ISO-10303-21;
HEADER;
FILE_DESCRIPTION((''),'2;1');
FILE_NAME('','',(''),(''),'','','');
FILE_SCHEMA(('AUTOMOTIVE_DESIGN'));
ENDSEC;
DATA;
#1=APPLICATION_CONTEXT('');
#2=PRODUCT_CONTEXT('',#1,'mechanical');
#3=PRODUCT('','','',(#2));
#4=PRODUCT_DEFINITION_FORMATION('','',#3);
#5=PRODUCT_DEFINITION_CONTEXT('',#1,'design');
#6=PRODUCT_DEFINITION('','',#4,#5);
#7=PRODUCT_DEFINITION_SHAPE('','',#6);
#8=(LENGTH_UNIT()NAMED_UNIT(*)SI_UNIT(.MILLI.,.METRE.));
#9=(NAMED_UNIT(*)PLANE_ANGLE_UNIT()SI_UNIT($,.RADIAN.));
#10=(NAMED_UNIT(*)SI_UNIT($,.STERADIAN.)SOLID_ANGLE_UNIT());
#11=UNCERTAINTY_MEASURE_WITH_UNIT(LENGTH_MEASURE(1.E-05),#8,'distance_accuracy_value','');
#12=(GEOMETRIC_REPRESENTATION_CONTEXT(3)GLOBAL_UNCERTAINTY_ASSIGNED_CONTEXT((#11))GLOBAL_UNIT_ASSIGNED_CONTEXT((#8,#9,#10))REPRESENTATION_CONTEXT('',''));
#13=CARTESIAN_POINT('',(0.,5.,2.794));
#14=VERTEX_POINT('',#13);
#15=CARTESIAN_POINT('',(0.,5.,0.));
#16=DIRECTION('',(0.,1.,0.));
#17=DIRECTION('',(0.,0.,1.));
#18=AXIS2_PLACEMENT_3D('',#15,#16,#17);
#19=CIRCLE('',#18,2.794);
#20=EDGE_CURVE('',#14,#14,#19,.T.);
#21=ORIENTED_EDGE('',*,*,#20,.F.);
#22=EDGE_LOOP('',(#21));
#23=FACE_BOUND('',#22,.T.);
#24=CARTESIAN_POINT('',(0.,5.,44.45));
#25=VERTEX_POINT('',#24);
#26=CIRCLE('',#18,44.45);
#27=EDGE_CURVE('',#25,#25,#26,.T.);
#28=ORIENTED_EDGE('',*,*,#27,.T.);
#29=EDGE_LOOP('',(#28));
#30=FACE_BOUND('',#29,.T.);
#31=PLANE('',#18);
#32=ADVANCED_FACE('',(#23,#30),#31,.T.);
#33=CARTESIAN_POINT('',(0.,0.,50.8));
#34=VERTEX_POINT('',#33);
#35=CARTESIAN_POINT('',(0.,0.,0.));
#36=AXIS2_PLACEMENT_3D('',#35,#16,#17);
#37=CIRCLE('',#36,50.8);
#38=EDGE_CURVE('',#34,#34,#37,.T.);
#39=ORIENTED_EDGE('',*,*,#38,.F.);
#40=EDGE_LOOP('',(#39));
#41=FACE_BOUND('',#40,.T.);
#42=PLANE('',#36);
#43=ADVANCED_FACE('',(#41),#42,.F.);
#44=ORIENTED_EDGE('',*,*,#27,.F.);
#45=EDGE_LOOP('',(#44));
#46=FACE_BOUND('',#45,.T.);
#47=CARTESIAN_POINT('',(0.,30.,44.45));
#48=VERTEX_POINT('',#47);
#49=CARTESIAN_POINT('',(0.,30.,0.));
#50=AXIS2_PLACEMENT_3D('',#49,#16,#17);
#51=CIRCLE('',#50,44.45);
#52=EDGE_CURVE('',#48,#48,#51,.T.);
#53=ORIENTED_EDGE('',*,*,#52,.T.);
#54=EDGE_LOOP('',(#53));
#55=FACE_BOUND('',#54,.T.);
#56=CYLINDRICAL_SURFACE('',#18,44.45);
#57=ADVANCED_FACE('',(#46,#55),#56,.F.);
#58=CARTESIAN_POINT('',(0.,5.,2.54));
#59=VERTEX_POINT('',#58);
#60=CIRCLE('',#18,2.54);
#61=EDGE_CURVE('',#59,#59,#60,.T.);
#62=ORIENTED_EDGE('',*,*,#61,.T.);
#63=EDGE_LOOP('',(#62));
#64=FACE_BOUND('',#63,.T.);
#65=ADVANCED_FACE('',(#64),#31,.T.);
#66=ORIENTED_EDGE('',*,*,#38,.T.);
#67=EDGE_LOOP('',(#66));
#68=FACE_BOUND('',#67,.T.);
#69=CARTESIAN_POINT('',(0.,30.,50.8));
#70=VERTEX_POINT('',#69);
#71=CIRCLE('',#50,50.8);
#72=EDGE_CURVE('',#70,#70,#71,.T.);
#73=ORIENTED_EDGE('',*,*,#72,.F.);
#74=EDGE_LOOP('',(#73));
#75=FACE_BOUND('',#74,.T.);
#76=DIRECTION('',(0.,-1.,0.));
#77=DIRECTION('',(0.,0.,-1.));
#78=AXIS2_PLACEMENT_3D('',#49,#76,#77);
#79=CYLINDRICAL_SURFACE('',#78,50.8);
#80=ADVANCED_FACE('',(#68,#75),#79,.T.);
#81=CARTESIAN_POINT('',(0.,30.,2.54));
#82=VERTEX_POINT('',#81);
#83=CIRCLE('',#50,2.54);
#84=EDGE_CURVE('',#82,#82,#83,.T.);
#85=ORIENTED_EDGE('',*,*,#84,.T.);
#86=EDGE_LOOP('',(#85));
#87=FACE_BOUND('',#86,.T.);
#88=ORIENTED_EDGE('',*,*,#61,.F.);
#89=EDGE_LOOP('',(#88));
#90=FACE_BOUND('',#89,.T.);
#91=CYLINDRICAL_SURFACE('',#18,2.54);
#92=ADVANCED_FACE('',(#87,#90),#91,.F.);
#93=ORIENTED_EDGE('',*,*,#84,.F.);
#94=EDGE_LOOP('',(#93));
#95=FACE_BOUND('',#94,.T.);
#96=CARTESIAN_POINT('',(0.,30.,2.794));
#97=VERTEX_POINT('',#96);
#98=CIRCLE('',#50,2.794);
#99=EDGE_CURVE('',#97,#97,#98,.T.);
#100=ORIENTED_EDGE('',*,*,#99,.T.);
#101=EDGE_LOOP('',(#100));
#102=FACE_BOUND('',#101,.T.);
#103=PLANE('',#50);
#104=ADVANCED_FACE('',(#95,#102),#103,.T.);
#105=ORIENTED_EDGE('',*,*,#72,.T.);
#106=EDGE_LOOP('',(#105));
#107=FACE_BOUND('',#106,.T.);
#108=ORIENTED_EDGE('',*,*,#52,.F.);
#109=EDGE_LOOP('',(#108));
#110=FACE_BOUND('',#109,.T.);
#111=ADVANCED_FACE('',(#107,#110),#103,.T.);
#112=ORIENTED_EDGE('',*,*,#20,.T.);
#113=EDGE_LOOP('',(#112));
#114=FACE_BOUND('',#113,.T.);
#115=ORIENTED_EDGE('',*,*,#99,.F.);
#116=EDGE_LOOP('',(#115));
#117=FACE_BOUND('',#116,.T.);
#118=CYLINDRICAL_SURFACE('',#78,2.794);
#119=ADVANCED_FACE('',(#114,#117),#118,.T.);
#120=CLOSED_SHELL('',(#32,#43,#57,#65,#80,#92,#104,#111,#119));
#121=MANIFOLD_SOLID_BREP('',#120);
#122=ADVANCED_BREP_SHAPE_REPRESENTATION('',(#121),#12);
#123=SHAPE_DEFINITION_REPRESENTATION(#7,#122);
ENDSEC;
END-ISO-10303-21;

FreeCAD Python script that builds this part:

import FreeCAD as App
import Part
import Sketcher

V = App.Vector
Q = App.Units.Quantity

doc = App.newDocument("Part")
body = doc.addObject("PartDesign::Body", "Body")

sketch1 = body.newObject("Sketcher::SketchObject", "Sketch")
sketch1.AttachmentSupport = (doc.getObject("XZ_Plane"), [""])
sketch1.MapMode = "FlatFace"
sketch1.addGeometry(Part.Circle(V(0, 0, 0), V(0, 0, 1), 51), False)
sketch1.addConstraint([
    Sketcher.Constraint("Coincident", 0, 3, -1, 1),
    Sketcher.Constraint("Diameter", 0, Q("4 in")),
])
pad1 = body.newObject("PartDesign::Pad", "Pad")
pad1.Profile = sketch1
pad1.Length = 30
pad1.Reversed = True

sketch2 = body.newObject("Sketcher::SketchObject", "Sketch001")
sketch2.AttachmentSupport = (doc.getObject("XZ_Plane"), [""])
sketch2.MapMode = "FlatFace"
sketch2.AttachmentOffset = App.Placement(V(0, 0, -30), App.Rotation())
sketch2.addGeometry(Part.Circle(V(0, 0, 0), V(0, 0, 1), 44), False)
sketch2.addConstraint([
    Sketcher.Constraint("Coincident", 0, 3, -1, 1),
    Sketcher.Constraint("Diameter", 0, Q("3.5 in")),
])
pocket1 = body.newObject("PartDesign::Pocket", "Pocket")
pocket1.Profile = sketch2
pocket1.Length = 25
pocket1.Reversed = True

sketch3 = body.newObject("Sketcher::SketchObject", "Sketch002")
sketch3.AttachmentSupport = (doc.getObject("XZ_Plane"), [""])
sketch3.MapMode = "FlatFace"
sketch3.AttachmentOffset = App.Placement(V(0, 0, -5), App.Rotation())
sketch3.addGeometry(Part.Circle(V(0, 0, 0), V(0, 0, 1), 2.8), False)
sketch3.addConstraint([
    Sketcher.Constraint("Coincident", 0, 3, -1, 1),
    Sketcher.Constraint("Diameter", 0, Q("0.22 in")),
])
pad2 = body.newObject("PartDesign::Pad", "Pad001")
pad2.Profile = sketch3
pad2.Length = 25
pad2.Reversed = True

sketch4 = body.newObject("Sketcher::SketchObject", "Sketch003")
sketch4.AttachmentSupport = (doc.getObject("XZ_Plane"), [""])
sketch4.MapMode = "FlatFace"
sketch4.AttachmentOffset = App.Placement(V(0, 0, -30), App.Rotation())
sketch4.addGeometry(Part.Circle(V(0, 0, 0), V(0, 0, 1), 2.5), False)
sketch4.addConstraint([
    Sketcher.Constraint("Coincident", 0, 3, -1, 1),
    Sketcher.Constraint("Diameter", 0, Q("0.2 in")),
])
pocket2 = body.newObject("PartDesign::Pocket", "Pocket001")
pocket2.Profile = sketch4
pocket2.Length = 25
pocket2.Reversed = True

doc.recompute()
